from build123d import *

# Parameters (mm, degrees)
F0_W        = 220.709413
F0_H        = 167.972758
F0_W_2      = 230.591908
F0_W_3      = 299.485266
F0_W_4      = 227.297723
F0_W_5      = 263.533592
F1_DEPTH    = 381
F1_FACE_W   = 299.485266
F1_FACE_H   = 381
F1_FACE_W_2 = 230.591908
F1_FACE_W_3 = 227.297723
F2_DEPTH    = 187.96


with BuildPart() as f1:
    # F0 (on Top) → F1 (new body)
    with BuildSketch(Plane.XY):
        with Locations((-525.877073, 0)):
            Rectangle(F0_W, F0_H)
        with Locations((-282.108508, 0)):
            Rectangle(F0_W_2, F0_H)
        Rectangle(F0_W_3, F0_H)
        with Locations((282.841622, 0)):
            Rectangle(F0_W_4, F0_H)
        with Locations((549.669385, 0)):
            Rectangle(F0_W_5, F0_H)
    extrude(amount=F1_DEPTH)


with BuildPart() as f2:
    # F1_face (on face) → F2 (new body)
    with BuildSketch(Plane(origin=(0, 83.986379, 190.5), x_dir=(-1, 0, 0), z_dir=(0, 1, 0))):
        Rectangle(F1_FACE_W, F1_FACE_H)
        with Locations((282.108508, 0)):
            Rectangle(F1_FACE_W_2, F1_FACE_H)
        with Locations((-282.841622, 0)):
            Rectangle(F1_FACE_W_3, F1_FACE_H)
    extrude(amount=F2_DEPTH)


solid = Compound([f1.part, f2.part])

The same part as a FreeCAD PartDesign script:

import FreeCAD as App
import Part
import Sketcher
Q = App.Units.Quantity

doc = App.newDocument("Part")
body = doc.addObject("PartDesign::Body", "Body")
body.AllowCompound = True

# Sketch on XY plane
sketch1 = body.newObject("Sketcher::SketchObject", "Sketch")
sketch1.AttachmentSupport = (doc.getObject("XY_Plane"), [""])
sketch1.MapMode = "FlatFace"
sketch1.addGeometry([
    Part.LineSegment(App.Vector(-636.23178, 83.986379, 0), App.Vector(-636.23178, -83.986379, 0)),  # 0
    Part.LineSegment(App.Vector(-636.23178, -83.986379, 0), App.Vector(-415.522366, -83.986379, 0)),  # 1
    Part.LineSegment(App.Vector(-415.522366, -83.986379, 0), App.Vector(-415.522366, 83.986379, 0)),  # 2
    Part.LineSegment(App.Vector(-415.522366, 83.986379, 0), App.Vector(-636.23178, 83.986379, 0)),  # 3
    Part.LineSegment(App.Vector(-397.404462, 83.986379, 0), App.Vector(-397.404462, -83.986379, 0)),  # 4
    Part.LineSegment(App.Vector(-397.404462, -83.986379, 0), App.Vector(-166.812554, -83.986379, 0)),  # 5
    Part.LineSegment(App.Vector(-166.812554, -83.986379, 0), App.Vector(-166.812554, 83.986379, 0)),  # 6
    Part.LineSegment(App.Vector(-166.812554, 83.986379, 0), App.Vector(-397.404462, 83.986379, 0)),  # 7
    Part.LineSegment(App.Vector(-149.742633, 83.986379, 0), App.Vector(-149.742633, -83.986379, 0)),  # 8
    Part.LineSegment(App.Vector(-149.742633, -83.986379, 0), App.Vector(149.742633, -83.986379, 0)),  # 9
    Part.LineSegment(App.Vector(149.742633, -83.986379, 0), App.Vector(149.742633, 83.986379, 0)),  # 10
    Part.LineSegment(App.Vector(149.742633, 83.986379, 0), App.Vector(-149.742633, 83.986379, 0)),  # 11
    Part.LineSegment(App.Vector(169.19276, 83.986379, 0), App.Vector(169.19276, -83.986379, 0)),  # 12
    Part.LineSegment(App.Vector(169.19276, -83.986379, 0), App.Vector(396.490483, -83.986379, 0)),  # 13
    Part.LineSegment(App.Vector(396.490483, -83.986379, 0), App.Vector(396.490483, 83.986379, 0)),  # 14
    Part.LineSegment(App.Vector(396.490483, 83.986379, 0), App.Vector(169.19276, 83.986379, 0)),  # 15
    Part.LineSegment(App.Vector(417.902589, 83.986379, 0), App.Vector(417.902589, -83.986379, 0)),  # 16
    Part.LineSegment(App.Vector(417.902589, -83.986379, 0), App.Vector(681.436181, -83.986379, 0)),  # 17
    Part.LineSegment(App.Vector(681.436181, -83.986379, 0), App.Vector(681.436181, 83.986379, 0)),  # 18
    Part.LineSegment(App.Vector(681.436181, 83.986379, 0), App.Vector(417.902589, 83.986379, 0)),  # 19
], False)
sketch1.addConstraint([
    Sketcher.Constraint("Coincident", 0, 2, 1, 1),
    Sketcher.Constraint("Coincident", 1, 2, 2, 1),
    Sketcher.Constraint("Coincident", 2, 2, 3, 1),
    Sketcher.Constraint("Coincident", 3, 2, 0, 1),
    Sketcher.Constraint("Coincident", 4, 2, 5, 1),
    Sketcher.Constraint("Coincident", 5, 2, 6, 1),
    Sketcher.Constraint("Coincident", 6, 2, 7, 1),
    Sketcher.Constraint("Coincident", 7, 2, 4, 1),
    Sketcher.Constraint("Coincident", 8, 2, 9, 1),
    Sketcher.Constraint("Coincident", 9, 2, 10, 1),
    Sketcher.Constraint("Coincident", 10, 2, 11, 1),
    Sketcher.Constraint("Coincident", 11, 2, 8, 1),
    Sketcher.Constraint("Coincident", 12, 2, 13, 1),
    Sketcher.Constraint("Coincident", 13, 2, 14, 1),
    Sketcher.Constraint("Coincident", 14, 2, 15, 1),
    Sketcher.Constraint("Coincident", 15, 2, 12, 1),
    Sketcher.Constraint("Coincident", 16, 2, 17, 1),
    Sketcher.Constraint("Coincident", 17, 2, 18, 1),
    Sketcher.Constraint("Coincident", 18, 2, 19, 1),
    Sketcher.Constraint("Coincident", 19, 2, 16, 1),
    Sketcher.Constraint("Vertical", 0),
    Sketcher.Constraint("Horizontal", 1),
    Sketcher.Constraint("Vertical", 2),
    Sketcher.Constraint("Horizontal", 3),
    Sketcher.Constraint("Vertical", 4),
    Sketcher.Constraint("Horizontal", 5),
    Sketcher.Constraint("Vertical", 6),
    Sketcher.Constraint("Horizontal", 7),
    Sketcher.Constraint("Vertical", 8),
    Sketcher.Constraint("Horizontal", 9),
    Sketcher.Constraint("Vertical", 10),
    Sketcher.Constraint("Horizontal", 11),
    Sketcher.Constraint("Vertical", 12),
    Sketcher.Constraint("Horizontal", 13),
    Sketcher.Constraint("Vertical", 14),
    Sketcher.Constraint("Horizontal", 15),
    Sketcher.Constraint("Vertical", 16),
    Sketcher.Constraint("Horizontal", 17),
    Sketcher.Constraint("Vertical", 18),
    Sketcher.Constraint("Horizontal", 19),
    Sketcher.Constraint("Symmetric", 8, 2, 10, 2, -1, 1),
    Sketcher.Constraint("Horizontal", 1, 2, 4, 2),
    Sketcher.Constraint("Horizontal", 3, 2, 6, 2),
    Sketcher.Constraint("Horizontal", 5, 2, 8, 2),
    Sketcher.Constraint("Horizontal", 7, 2, 10, 2),
    Sketcher.Constraint("Horizontal", 9, 2, 12, 2),
    Sketcher.Constraint("Horizontal", 11, 2, 14, 2),
    Sketcher.Constraint("Horizontal", 13, 2, 16, 2),
    Sketcher.Constraint("Horizontal", 15, 2, 18, 2),
    Sketcher.Constraint("DistanceX", 5, 1, 5, 2, 230.591908),
    Sketcher.Constraint("DistanceY", 0, 2, 0, 1, 167.972758),
    Sketcher.Constraint("DistanceX", 1, 2, 9, 2, 565.264999),
    Sketcher.Constraint("DistanceX", 1, 1, 1, 2, 220.709413),
    Sketcher.Constraint("DistanceX", 9, 1, 9, 2, 299.485266),
    Sketcher.Constraint("DistanceX", 13, 1, 13, 2, 227.297723),
    Sketcher.Constraint("DistanceX", 17, 1, 17, 2, 263.533592),
    Sketcher.Constraint("DistanceX", -1, 1, 12, 2, 169.19276),
    Sketcher.Constraint("DistanceX", -1, 1, 16, 2, 417.902589),
    Sketcher.Constraint("DistanceX", 5, 2, 8, 2, 17.069921),
])
pad1 = body.newObject("PartDesign::Pad", "Pad")
pad1.Profile = sketch1
pad1.Length = Q("15 in")
body2 = doc.addObject("PartDesign::Body", "Body001")
body2.AllowCompound = True

# Sketch on XZ plane
sketch2 = body2.newObject("Sketcher::SketchObject", "Sketch001")
sketch2.AttachmentSupport = (doc.getObject("XZ_Plane001"), [""])
sketch2.MapMode = "FlatFace"
sketch2.AttachmentOffset = App.Placement(App.Vector(0, 0, -83.986379), App.Rotation())
sketch2.addGeometry([
    Part.LineSegment(App.Vector(149.742633, 381, 0), App.Vector(149.742633, 0, 0)),  # 0
    Part.LineSegment(App.Vector(149.742633, 0, 0), App.Vector(-149.742633, 0, 0)),  # 1
    Part.LineSegment(App.Vector(-149.742633, 0, 0), App.Vector(-149.742633, 381, 0)),  # 2
    Part.LineSegment(App.Vector(-149.742633, 381, 0), App.Vector(149.742633, 381, 0)),  # 3
    Part.LineSegment(App.Vector(-166.812554, 381, 0), App.Vector(-166.812554, 0, 0)),  # 4
    Part.LineSegment(App.Vector(-166.812554, 0, 0), App.Vector(-397.404462, 0, 0)),  # 5
    Part.LineSegment(App.Vector(-397.404462, 0, 0), App.Vector(-397.404462, 381, 0)),  # 6
    Part.LineSegment(App.Vector(-397.404462, 381, 0), App.Vector(-166.812554, 381, 0)),  # 7
    Part.LineSegment(App.Vector(396.490483, 381, 0), App.Vector(396.490483, 0, 0)),  # 8
    Part.LineSegment(App.Vector(396.490483, 0, 0), App.Vector(169.19276, 0, 0)),  # 9
    Part.LineSegment(App.Vector(169.19276, 0, 0), App.Vector(169.19276, 381, 0)),  # 10
    Part.LineSegment(App.Vector(169.19276, 381, 0), App.Vector(396.490483, 381, 0)),  # 11
], False)
sketch2.addConstraint([
    Sketcher.Constraint("Coincident", 0, 2, 1, 1),
    Sketcher.Constraint("Coincident", 1, 2, 2, 1),
    Sketcher.Constraint("Coincident", 2, 2, 3, 1),
    Sketcher.Constraint("Coincident", 3, 2, 0, 1),
    Sketcher.Constraint("Coincident", 4, 2, 5, 1),
    Sketcher.Constraint("Coincident", 5, 2, 6, 1),
    Sketcher.Constraint("Coincident", 6, 2, 7, 1),
    Sketcher.Constraint("Coincident", 7, 2, 4, 1),
    Sketcher.Constraint("Coincident", 8, 2, 9, 1),
    Sketcher.Constraint("Coincident", 9, 2, 10, 1),
    Sketcher.Constraint("Coincident", 10, 2, 11, 1),
    Sketcher.Constraint("Coincident", 11, 2, 8, 1),
    Sketcher.Constraint("Vertical", 0),
    Sketcher.Constraint("Horizontal", 1),
    Sketcher.Constraint("Vertical", 2),
    Sketcher.Constraint("Horizontal", 3),
    Sketcher.Constraint("Vertical", 4),
    Sketcher.Constraint("Horizontal", 5),
    Sketcher.Constraint("Vertical", 6),
    Sketcher.Constraint("Horizontal", 7),
    Sketcher.Constraint("Vertical", 8),
    Sketcher.Constraint("Horizontal", 9),
    Sketcher.Constraint("Vertical", 10),
    Sketcher.Constraint("Horizontal", 11),
    Sketcher.Constraint("Symmetric", 0, 2, 1, 2, -1, 1),
    Sketcher.Constraint("PointOnObject", 4, 2, -1),
    Sketcher.Constraint("PointOnObject", 8, 2, -1),
    Sketcher.Constraint("Horizontal", 3, 2, 6, 2),
    Sketcher.Constraint("Horizontal", 7, 2, 10, 2),
    Sketcher.Constraint("DistanceY", 0, 2, 0, 1, Q("15 in")),
    Sketcher.Constraint("DistanceX", 5, 2, 5, 1, 230.591908),
    Sketcher.Constraint("DistanceX", 1, 2, 1, 1, 299.485266),
    Sketcher.Constraint("DistanceX", 9, 2, 9, 1, 227.297723),
    Sketcher.Constraint("DistanceX", -1, 1, 9, 2, 169.19276),
    Sketcher.Constraint("DistanceX", 4, 2, 1, 2, 17.069921),
])
pad2 = body2.newObject("PartDesign::Pad", "Pad001")
pad2.Profile = sketch2
pad2.Length = Q("7.4 in")
pad2.Reversed = True

doc.recompute()
